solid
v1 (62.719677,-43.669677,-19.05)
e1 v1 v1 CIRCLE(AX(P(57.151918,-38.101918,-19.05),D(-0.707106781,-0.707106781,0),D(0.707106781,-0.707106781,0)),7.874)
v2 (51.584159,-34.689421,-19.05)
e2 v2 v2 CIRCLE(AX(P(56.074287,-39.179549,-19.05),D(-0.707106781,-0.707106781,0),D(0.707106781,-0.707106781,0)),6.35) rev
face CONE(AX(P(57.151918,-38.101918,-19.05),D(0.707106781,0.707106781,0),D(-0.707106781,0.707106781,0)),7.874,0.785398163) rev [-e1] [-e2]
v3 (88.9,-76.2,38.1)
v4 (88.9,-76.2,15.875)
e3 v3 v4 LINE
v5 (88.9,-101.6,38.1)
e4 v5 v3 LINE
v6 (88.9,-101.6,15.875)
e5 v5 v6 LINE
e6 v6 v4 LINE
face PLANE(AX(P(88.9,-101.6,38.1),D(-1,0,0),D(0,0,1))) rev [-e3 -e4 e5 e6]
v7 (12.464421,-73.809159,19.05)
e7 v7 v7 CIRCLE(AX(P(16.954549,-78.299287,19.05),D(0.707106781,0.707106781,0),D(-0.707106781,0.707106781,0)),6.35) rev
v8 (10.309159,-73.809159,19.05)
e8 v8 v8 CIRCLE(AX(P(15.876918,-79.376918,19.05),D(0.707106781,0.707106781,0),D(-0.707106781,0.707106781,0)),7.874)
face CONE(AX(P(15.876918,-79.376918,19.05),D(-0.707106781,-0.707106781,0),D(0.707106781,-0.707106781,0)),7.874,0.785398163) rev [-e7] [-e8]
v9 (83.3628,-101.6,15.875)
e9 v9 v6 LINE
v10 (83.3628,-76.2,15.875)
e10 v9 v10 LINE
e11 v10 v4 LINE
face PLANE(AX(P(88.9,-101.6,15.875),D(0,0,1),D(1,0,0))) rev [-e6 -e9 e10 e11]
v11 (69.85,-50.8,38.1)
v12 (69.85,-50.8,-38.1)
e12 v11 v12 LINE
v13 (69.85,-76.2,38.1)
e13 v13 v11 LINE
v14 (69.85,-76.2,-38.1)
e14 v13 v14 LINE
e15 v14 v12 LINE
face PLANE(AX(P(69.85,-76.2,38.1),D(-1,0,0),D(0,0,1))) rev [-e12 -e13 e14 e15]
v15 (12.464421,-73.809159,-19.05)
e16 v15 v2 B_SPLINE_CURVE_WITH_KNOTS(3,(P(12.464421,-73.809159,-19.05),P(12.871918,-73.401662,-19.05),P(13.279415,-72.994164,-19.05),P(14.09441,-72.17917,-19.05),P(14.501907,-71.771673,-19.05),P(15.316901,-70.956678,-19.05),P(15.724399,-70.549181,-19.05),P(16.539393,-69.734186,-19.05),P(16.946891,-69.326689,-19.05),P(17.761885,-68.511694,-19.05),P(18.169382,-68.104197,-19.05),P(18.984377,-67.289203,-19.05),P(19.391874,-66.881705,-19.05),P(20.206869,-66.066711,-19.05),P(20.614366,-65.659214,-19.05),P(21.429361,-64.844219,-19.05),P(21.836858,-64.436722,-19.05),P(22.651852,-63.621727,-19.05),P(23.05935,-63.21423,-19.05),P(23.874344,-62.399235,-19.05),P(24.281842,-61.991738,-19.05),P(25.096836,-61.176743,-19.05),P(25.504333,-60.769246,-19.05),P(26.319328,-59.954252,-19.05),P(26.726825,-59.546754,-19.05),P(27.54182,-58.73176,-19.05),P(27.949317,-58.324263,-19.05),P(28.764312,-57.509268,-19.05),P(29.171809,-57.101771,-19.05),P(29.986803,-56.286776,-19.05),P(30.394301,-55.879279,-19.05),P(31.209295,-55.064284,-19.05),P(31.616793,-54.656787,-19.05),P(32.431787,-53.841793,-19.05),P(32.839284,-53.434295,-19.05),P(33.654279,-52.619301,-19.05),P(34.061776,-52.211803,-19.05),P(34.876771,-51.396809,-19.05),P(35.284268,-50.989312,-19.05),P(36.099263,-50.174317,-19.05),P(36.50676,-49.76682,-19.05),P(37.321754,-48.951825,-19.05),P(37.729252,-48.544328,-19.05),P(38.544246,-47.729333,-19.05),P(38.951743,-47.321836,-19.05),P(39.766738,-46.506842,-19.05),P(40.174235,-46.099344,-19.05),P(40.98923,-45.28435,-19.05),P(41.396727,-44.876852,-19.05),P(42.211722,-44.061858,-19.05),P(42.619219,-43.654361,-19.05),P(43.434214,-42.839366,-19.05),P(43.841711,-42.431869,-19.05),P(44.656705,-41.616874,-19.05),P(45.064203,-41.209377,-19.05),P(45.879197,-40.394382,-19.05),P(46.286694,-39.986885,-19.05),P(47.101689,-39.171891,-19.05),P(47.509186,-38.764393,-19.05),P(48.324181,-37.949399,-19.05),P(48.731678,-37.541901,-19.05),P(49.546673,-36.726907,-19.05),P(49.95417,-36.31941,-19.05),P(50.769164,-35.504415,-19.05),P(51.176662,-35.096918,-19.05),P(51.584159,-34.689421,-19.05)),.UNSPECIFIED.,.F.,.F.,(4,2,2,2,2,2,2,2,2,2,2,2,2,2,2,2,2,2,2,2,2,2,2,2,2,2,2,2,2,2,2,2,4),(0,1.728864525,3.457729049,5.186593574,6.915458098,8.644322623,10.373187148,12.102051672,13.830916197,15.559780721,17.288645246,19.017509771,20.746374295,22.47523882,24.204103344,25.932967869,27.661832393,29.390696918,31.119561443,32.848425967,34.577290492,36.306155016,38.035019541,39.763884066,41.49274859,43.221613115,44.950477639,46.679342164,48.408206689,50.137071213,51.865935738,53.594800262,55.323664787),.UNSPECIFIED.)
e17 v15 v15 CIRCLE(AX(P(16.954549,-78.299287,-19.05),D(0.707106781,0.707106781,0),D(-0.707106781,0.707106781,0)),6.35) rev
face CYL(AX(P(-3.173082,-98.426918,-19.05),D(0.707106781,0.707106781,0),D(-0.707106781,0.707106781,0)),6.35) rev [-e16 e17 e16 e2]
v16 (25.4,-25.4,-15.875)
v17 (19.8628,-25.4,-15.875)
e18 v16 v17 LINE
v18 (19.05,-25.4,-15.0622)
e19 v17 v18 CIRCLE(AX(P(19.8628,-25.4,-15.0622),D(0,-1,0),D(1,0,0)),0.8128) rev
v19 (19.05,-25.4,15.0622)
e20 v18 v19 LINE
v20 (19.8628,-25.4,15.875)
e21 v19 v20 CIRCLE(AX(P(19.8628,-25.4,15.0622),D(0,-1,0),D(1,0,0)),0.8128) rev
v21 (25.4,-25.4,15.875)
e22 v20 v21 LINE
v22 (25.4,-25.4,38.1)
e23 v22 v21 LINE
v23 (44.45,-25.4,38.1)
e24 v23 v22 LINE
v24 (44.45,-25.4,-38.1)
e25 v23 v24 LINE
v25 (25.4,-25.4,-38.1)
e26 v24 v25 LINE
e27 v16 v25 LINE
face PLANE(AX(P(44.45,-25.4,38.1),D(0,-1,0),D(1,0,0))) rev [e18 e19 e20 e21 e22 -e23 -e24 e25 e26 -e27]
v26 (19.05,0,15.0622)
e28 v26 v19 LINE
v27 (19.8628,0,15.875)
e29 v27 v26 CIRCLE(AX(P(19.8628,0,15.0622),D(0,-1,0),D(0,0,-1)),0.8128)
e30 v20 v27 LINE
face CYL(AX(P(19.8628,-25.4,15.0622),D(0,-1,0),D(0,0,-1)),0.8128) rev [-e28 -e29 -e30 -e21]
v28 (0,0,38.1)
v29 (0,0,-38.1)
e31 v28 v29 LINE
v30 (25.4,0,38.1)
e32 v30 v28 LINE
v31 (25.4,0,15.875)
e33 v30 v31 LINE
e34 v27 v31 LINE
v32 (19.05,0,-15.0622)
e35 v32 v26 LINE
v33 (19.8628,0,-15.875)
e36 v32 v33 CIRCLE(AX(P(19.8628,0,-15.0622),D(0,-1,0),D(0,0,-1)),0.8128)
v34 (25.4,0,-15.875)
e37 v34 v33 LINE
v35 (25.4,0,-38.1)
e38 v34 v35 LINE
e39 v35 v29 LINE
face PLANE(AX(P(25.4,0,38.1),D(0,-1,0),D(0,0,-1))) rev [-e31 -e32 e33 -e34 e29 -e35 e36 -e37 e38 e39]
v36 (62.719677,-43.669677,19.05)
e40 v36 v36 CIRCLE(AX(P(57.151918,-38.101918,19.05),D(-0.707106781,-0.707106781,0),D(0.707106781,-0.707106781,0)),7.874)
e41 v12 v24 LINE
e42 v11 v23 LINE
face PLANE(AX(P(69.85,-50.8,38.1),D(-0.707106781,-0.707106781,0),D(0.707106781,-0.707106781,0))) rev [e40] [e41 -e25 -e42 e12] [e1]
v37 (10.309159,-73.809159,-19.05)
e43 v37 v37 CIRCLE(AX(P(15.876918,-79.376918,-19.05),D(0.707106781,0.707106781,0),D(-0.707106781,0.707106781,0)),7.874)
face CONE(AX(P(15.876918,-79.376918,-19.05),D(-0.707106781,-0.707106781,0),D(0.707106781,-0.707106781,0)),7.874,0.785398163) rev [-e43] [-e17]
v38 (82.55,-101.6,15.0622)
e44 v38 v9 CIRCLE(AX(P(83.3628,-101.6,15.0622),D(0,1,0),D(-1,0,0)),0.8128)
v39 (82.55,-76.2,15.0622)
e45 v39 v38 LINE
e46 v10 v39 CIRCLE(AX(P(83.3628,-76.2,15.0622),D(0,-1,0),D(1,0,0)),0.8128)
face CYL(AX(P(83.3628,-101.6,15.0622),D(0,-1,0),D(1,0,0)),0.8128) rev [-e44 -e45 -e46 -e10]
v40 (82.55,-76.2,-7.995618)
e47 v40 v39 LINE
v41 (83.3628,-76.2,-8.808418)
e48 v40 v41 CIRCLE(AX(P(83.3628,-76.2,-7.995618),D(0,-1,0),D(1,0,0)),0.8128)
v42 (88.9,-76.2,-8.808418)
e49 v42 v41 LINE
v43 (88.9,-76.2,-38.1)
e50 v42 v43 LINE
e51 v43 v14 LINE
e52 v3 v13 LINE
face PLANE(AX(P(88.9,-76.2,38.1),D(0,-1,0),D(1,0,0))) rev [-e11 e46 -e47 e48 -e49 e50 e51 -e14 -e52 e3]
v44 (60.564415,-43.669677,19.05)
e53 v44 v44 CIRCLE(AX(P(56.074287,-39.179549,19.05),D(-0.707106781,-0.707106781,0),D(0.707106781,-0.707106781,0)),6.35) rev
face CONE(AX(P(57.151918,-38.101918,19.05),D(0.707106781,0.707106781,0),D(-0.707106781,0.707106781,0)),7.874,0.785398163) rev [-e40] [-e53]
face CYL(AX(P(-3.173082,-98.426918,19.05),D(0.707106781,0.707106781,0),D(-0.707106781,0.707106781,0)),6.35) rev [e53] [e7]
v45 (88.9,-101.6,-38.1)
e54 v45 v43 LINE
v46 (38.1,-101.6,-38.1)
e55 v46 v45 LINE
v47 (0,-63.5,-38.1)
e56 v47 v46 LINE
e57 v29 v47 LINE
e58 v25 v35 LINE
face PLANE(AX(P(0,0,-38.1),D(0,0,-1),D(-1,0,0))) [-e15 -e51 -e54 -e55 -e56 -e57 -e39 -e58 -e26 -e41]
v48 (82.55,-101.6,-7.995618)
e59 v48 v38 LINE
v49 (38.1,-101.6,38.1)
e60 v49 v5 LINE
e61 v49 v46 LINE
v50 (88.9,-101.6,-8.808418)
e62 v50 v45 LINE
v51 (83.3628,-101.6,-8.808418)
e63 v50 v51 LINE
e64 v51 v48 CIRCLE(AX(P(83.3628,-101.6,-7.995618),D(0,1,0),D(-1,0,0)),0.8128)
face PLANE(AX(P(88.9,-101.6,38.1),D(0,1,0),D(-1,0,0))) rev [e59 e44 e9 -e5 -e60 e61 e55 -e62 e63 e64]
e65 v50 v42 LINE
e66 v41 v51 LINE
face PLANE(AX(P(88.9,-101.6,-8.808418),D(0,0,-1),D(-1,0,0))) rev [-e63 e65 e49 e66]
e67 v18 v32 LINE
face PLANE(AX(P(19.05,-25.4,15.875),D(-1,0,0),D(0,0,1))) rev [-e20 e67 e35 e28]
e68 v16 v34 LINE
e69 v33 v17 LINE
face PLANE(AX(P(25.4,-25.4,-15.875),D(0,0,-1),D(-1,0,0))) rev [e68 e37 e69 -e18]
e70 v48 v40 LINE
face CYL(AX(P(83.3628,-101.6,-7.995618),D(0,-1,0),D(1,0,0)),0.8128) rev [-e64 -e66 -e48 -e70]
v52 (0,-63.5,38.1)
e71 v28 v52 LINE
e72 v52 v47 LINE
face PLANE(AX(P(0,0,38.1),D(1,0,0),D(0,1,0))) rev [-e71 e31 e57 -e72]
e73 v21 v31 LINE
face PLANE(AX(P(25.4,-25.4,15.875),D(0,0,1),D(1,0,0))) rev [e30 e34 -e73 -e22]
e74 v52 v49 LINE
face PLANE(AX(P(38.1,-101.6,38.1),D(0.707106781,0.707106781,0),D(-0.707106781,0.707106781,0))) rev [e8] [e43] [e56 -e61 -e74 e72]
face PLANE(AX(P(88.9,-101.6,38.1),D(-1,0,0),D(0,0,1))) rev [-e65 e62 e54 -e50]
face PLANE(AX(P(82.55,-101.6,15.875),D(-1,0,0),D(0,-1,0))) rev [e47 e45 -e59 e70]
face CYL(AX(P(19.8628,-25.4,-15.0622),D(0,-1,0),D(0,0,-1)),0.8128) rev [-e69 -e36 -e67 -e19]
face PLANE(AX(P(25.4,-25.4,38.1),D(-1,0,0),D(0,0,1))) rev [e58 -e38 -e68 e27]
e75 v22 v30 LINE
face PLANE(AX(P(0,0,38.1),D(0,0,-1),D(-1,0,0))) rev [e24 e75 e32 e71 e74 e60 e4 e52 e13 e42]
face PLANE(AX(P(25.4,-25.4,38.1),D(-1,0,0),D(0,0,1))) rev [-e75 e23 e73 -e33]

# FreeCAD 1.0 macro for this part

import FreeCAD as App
import Part
import Sketcher
from FreeCAD import Vector
Q = App.Units.Quantity


def edges_at(feature, points):
    """Names of the edges that pass closest to the given points."""
    edges = feature.Shape.Edges
    near = lambda p: min(range(len(edges)), key=lambda i: edges[i].distToShape(Part.Vertex(*p))[0])
    return sorted({f"Edge{near(p) + 1}" for p in points})

doc = App.newDocument("Part")
body = doc.addObject("PartDesign::Body", "Body")

sketch1 = body.newObject("Sketcher::SketchObject", "Sketch")
sketch1.AttachmentSupport = (doc.getObject("XY_Plane"), [""])
sketch1.MapMode = "FlatFace"
sketch1.addGeometry([
    Part.LineSegment(Vector(89, -102, 0), Vector(89, -76, 0)),
    Part.LineSegment(Vector(89, -76, 0), Vector(70, -76, 0)),
    Part.LineSegment(Vector(70, -76, 0), Vector(70, -51, 0)),
    Part.LineSegment(Vector(70, -51, 0), Vector(44, -25, 0)),
    Part.LineSegment(Vector(44, -25, 0), Vector(25, -25, 0)),
    Part.LineSegment(Vector(25, -25, 0), Vector(25, 0, 0)),
    Part.LineSegment(Vector(25, 0, 0), Vector(0, 0, 0)),
    Part.LineSegment(Vector(0, 0, 0), Vector(0, -64, 0)),
    Part.LineSegment(Vector(0, -64, 0), Vector(38, -102, 0)),
    Part.LineSegment(Vector(38, -102, 0), Vector(89, -102, 0)),
], False)
sketch1.addConstraint([
    Sketcher.Constraint("Coincident", 0, 2, 1, 1),
    Sketcher.Constraint("Coincident", 1, 2, 2, 1),
    Sketcher.Constraint("Coincident", 2, 2, 3, 1),
    Sketcher.Constraint("Coincident", 3, 2, 4, 1),
    Sketcher.Constraint("Coincident", 4, 2, 5, 1),
    Sketcher.Constraint("Coincident", 5, 2, 6, 1),
    Sketcher.Constraint("Coincident", 6, 2, 7, 1),
    Sketcher.Constraint("Coincident", 7, 2, 8, 1),
    Sketcher.Constraint("Coincident", 8, 2, 9, 1),
    Sketcher.Constraint("Coincident", 9, 2, 0, 1),
    Sketcher.Constraint("Vertical", 0),
    Sketcher.Constraint("Horizontal", 1),
    Sketcher.Constraint("Vertical", 2),
    Sketcher.Constraint("Horizontal", 4),
    Sketcher.Constraint("Vertical", 5),
    Sketcher.Constraint("Horizontal", 6),
    Sketcher.Constraint("Vertical", 7),
    Sketcher.Constraint("Horizontal", 9),
    Sketcher.Constraint("Coincident", 6, 2, -1, 1),
    Sketcher.Constraint("Parallel", 3, 8),
    Sketcher.Constraint("Equal", 1, 4),
    Sketcher.Constraint("Equal", 6, 0),
    Sketcher.Constraint("Equal", 0, 2),
    Sketcher.Constraint("Equal", 2, 5),
    Sketcher.Constraint("DistanceX", 6, 2, 6, 1, Q("1 in")),
    Sketcher.Constraint("DistanceX", 9, 1, 9, 2, Q("2 in")),
    Sketcher.Constraint("DistanceY", 7, 2, 7, 1, Q("2.5 in")),
    Sketcher.Constraint("DistanceY", 0, 2, -1, 1, Q("3 in")),
    Sketcher.Constraint("Angle", 3, Q("135 deg")),
])
pad1 = body.newObject("PartDesign::Pad", "Pad")
pad1.Profile = sketch1
pad1.Length = Q("3 in")
pad1.Midplane = True

sketch2 = body.newObject("Sketcher::SketchObject", "Sketch001")
sketch2.Placement = App.Placement(Vector(9.525, 9.525, 0), App.Rotation(Vector(0, 0, -1), Vector(-0.707106781, 0.707106781, 0), Vector(0.707106781, 0.707106781, 0), "ZXY"))
sketch2.addGeometry([
    Part.Circle(Vector(19, -67, 0), Vector(0, 0, 1), 6),
    Part.Circle(Vector(-19, -67, 0), Vector(0, 0, 1), 6),
], False)
sketch2.addConstraint([
    Sketcher.Constraint("Equal", 0, 1),
    Sketcher.Constraint("Symmetric", 0, 3, 1, 3, -2),
    Sketcher.Constraint("Diameter", 0, Q("0.5 in")),
    Sketcher.Constraint("DistanceX", 1, 3, 0, 3, Q("1.5 in")),
    Sketcher.Constraint("DistanceY", 0, 3, -1, 1, Q("67.354633 mm")),
])
pocket1 = body.newObject("PartDesign::Pocket", "Pocket")
pocket1.Profile = sketch2
pocket1.Type = "ThroughAll"
pocket1.Midplane = True

sketch3 = body.newObject("Sketcher::SketchObject", "Sketch002")
sketch3.AttachmentSupport = (doc.getObject("XZ_Plane"), [""])
sketch3.MapMode = "FlatFace"
sketch3.addGeometry([
    Part.LineSegment(Vector(19, -16, 0), Vector(19, 16, 0)),
    Part.LineSegment(Vector(19, 16, 0), Vector(25, 16, 0)),
    Part.LineSegment(Vector(25, 16, 0), Vector(25, -16, 0)),
    Part.LineSegment(Vector(25, -16, 0), Vector(19, -16, 0)),
], False)
sketch3.addConstraint([
    Sketcher.Constraint("Coincident", 0, 2, 1, 1),
    Sketcher.Constraint("Coincident", 1, 2, 2, 1),
    Sketcher.Constraint("Coincident", 2, 2, 3, 1),
    Sketcher.Constraint("Coincident", 3, 2, 0, 1),
    Sketcher.Constraint("Vertical", 0),
    Sketcher.Constraint("Horizontal", 1),
    Sketcher.Constraint("Vertical", 2),
    Sketcher.Constraint("Horizontal", 3),
    Sketcher.Constraint("DistanceX", -1, 1, 1, 2, Q("1 in")),
    Sketcher.Constraint("DistanceX", 1, 1, 1, 2, Q("0.25 in")),
    Sketcher.Constraint("DistanceY", 0, 1, 0, 2, Q("1.25 in")),
    Sketcher.Constraint("DistanceY", -1, 1, 0, 2, Q("0.625 in")),
])
pocket2 = body.newObject("PartDesign::Pocket", "Pocket001")
pocket2.Profile = sketch3
pocket2.Length = Q("1 in")
pocket2.Reversed = True

sketch4 = body.newObject("Sketcher::SketchObject", "Sketch003")
sketch4.AttachmentSupport = (doc.getObject("XZ_Plane"), [""])
sketch4.MapMode = "FlatFace"
sketch4.AttachmentOffset = App.Placement(Vector(0, 0, 3 * 25.4), App.Rotation())
sketch4.addGeometry([
    Part.LineSegment(Vector(83, -9, 0), Vector(83, 16, 0)),
    Part.LineSegment(Vector(83, 16, 0), Vector(89, 16, 0)),
    Part.LineSegment(Vector(89, 16, 0), Vector(89, -9, 0)),
    Part.LineSegment(Vector(89, -9, 0), Vector(83, -9, 0)),
], False)
sketch4.addConstraint([
    Sketcher.Constraint("Coincident", 0, 2, 1, 1),
    Sketcher.Constraint("Coincident", 1, 2, 2, 1),
    Sketcher.Constraint("Coincident", 2, 2, 3, 1),
    Sketcher.Constraint("Coincident", 3, 2, 0, 1),
    Sketcher.Constraint("Vertical", 0),
    Sketcher.Constraint("Horizontal", 1),
    Sketcher.Constraint("Vertical", 2),
    Sketcher.Constraint("Horizontal", 3),
    Sketcher.Constraint("DistanceX", 1, 1, 1, 2, Q("0.25 in")),
    Sketcher.Constraint("DistanceX", -1, 1, 1, 2, Q("3.5 in")),
    Sketcher.Constraint("DistanceY", -1, 1, 0, 2, Q("0.625 in")),
    Sketcher.Constraint("DistanceY", 0, 1, 0, 2, Q("24.683418 mm")),
])
pocket3 = body.newObject("PartDesign::Pocket", "Pocket002")
pocket3.Profile = sketch4
pocket3.Type = "ThroughAll"
pocket3.Reversed = True
doc.recompute()

fillet = body.newObject("PartDesign::Fillet", "Fillet")
fillet.Base = (pocket3, edges_at(pocket3, [
    (19.05, -12.7, 15.875),
    (19.05, -12.7, -15.875),
    (82.55, -88.9, 15.875),
    (82.55, -88.9, -8.808),
]))
fillet.Radius = Q("0.032 in")
doc.recompute()

chamfer = body.newObject("PartDesign::Chamfer", "Chamfer")
chamfer.Base = (fillet, edges_at(fillet, [
    (61.642, -42.592, -19.05),
    (20.367, -83.867, -19.05),
    (61.642, -42.592, 19.05),
    (20.367, -83.867, 19.05),
]))
chamfer.Size = Q("0.06 in")

doc.recompute()
